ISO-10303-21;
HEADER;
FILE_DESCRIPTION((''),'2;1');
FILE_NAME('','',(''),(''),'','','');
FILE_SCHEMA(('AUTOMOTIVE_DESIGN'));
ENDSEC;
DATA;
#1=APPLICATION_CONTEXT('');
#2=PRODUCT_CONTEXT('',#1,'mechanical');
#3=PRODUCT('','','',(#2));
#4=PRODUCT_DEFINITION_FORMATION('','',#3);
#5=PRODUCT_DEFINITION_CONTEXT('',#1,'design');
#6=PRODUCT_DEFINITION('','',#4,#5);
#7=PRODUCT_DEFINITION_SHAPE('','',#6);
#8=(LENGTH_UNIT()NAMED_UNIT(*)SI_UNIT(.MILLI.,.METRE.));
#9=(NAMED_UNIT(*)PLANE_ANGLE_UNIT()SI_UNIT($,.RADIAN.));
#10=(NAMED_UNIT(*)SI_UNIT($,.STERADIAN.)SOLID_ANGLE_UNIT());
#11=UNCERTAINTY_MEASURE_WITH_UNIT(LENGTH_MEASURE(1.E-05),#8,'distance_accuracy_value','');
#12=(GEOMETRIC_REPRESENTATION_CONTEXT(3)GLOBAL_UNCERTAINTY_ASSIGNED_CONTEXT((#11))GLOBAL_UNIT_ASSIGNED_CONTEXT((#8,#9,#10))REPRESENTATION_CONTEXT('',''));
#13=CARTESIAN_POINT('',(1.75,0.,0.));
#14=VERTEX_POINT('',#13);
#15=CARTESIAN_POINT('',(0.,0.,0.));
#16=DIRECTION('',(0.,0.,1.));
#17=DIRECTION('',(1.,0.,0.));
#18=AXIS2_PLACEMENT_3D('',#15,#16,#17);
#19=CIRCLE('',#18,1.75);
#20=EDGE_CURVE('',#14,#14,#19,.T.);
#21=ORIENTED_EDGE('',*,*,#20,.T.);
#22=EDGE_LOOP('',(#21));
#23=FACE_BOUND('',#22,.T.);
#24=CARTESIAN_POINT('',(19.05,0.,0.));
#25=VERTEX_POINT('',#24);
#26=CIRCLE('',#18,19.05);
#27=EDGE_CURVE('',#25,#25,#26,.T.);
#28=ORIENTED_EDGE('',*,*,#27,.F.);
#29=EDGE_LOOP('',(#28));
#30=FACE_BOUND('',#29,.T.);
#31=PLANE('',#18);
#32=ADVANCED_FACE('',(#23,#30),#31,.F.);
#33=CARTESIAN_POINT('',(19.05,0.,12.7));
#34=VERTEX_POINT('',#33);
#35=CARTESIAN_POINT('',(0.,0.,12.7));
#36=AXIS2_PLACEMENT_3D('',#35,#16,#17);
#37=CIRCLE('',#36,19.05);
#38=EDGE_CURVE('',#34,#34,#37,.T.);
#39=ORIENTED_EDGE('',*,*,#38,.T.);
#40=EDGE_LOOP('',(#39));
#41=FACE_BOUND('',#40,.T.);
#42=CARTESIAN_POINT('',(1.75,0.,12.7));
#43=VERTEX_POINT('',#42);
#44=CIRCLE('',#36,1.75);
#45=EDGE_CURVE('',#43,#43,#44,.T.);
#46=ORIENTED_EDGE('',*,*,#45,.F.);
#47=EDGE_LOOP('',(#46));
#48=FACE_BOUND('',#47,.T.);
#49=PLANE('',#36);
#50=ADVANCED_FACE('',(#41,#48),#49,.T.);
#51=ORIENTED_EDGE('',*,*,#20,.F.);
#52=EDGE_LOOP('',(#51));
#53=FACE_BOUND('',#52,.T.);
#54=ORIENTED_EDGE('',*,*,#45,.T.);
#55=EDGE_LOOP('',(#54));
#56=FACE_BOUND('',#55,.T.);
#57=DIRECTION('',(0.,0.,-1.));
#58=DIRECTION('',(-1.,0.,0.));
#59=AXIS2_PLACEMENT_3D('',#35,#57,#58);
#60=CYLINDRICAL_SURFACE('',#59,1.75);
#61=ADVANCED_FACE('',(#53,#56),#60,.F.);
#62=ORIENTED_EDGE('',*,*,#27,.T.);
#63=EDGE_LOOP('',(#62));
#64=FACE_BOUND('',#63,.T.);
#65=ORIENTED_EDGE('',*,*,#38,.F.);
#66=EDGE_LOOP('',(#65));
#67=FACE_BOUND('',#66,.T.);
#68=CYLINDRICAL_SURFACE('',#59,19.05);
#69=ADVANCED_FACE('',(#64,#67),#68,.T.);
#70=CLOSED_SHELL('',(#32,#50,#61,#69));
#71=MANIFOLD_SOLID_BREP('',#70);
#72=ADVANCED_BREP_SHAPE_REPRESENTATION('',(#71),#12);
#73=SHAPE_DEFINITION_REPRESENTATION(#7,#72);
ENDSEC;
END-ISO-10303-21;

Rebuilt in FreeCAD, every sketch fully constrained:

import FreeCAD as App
import Part
import Sketcher
from FreeCAD import Vector
Q = App.Units.Quantity

doc = App.newDocument("Part")
body = doc.addObject("PartDesign::Body", "Body")

# Sketch on XY plane
sketch1 = doc.addObject("Sketcher::SketchObject", "Sketch")
body.addObject(sketch1)
sketch1.AttachmentSupport = (doc.XY_Plane, [""])
sketch1.MapMode = "FlatFace"
sketch1.addGeometry(Part.Circle(Vector(0, 0, 0), Vector(0, 0, 1), 19.1), False)
sketch1.addGeometry(Part.Circle(Vector(0, 0, 0), Vector(0, 0, 1), 1.8), False)
sketch1.addConstraint(Sketcher.Constraint("Coincident", 0, 3, -1, 1))
sketch1.addConstraint(Sketcher.Constraint("Coincident", 1, 3, -1, 1))
sketch1.addConstraint(Sketcher.Constraint("Diameter", 0, Q("1.5 in")))
sketch1.addConstraint(Sketcher.Constraint("Diameter", 1, Q("3.5 mm")))
pad1 = doc.addObject("PartDesign::Pad", "Pad")
body.addObject(pad1)
pad1.Profile = sketch1
pad1.Length = Q("0.5 in")

doc.recompute()
